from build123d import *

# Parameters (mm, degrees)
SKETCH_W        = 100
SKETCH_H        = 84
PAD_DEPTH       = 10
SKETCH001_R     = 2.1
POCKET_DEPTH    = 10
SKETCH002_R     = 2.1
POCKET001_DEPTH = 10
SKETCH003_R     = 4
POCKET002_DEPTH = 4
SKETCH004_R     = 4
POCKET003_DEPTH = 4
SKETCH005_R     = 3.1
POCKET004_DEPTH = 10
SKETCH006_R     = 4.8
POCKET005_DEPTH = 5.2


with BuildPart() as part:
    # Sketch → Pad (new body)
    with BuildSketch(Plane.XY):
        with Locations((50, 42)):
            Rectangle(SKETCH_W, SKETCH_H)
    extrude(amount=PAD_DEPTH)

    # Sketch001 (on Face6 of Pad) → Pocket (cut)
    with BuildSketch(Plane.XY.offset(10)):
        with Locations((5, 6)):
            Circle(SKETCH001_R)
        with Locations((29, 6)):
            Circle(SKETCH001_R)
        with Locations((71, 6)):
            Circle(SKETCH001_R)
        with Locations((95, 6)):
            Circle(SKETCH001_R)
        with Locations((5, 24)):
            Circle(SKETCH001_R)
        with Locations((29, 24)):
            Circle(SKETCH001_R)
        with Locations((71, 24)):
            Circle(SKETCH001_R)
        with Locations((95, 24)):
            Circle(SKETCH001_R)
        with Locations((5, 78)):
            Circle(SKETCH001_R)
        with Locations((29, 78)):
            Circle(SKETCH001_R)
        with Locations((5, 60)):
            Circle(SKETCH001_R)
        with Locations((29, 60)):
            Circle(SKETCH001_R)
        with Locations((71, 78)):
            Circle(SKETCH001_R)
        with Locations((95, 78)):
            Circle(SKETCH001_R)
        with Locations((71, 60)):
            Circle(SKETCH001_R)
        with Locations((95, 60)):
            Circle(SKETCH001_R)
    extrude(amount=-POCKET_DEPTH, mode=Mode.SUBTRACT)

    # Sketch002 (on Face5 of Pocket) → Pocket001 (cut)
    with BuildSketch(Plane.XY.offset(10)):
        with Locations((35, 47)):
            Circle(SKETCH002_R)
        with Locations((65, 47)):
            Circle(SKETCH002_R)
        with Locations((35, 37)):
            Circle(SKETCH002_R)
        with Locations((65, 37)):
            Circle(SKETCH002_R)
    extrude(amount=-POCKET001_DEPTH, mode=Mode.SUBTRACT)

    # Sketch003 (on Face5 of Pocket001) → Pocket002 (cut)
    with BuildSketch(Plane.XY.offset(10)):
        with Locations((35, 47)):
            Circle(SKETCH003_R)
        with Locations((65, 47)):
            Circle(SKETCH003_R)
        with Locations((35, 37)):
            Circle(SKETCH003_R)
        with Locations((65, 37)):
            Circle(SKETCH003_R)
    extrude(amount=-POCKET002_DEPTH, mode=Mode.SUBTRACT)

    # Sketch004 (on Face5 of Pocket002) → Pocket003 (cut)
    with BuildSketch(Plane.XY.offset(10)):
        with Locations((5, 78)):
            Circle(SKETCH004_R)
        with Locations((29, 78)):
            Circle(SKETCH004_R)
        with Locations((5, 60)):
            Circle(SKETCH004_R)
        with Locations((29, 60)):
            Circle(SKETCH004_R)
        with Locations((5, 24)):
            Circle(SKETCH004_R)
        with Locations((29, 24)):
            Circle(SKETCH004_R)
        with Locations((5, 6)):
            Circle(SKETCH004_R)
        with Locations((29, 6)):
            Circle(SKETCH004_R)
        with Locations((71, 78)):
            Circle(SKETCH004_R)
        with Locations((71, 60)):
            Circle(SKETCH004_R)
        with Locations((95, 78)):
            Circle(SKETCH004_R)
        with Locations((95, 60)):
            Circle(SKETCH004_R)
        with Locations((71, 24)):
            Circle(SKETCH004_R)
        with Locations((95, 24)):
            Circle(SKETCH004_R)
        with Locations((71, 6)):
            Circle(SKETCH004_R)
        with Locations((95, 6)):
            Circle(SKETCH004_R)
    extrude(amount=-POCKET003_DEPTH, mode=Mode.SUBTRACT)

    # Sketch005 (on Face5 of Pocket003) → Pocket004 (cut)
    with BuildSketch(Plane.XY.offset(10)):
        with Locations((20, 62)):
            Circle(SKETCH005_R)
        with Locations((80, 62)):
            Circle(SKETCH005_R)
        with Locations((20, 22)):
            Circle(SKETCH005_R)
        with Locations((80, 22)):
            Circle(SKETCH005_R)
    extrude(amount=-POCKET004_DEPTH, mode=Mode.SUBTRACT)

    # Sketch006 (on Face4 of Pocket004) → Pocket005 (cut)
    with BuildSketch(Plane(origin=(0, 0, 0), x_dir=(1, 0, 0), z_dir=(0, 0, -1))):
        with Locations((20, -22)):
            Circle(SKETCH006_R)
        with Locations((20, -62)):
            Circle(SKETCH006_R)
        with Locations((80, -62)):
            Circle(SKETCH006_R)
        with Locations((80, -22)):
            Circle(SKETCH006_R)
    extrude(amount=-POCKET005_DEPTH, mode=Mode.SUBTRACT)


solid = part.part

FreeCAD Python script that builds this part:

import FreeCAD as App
import Part
import Sketcher
from FreeCAD import Vector
Q = App.Units.Quantity


def add_polygon(sketch, points):
    """Adds a closed chain of lines whose ends are joined by coincident constraints."""
    first, n = sketch.GeometryCount, len(points)
    for a, b in zip(points, points[1:] + points[:1]):
        sketch.addGeometry(Part.LineSegment(App.Vector(*a, 0), App.Vector(*b, 0)), False)
    for i in range(n):
        sketch.addConstraint(Sketcher.Constraint("Coincident", first + i, 2, first + (i + 1) % n, 1))

doc = App.newDocument("Part")
params = doc.addObject("Spreadsheet::Sheet", "Params")
for row, (alias, value) in enumerate([
    ("sketch1_width", "100 mm"),
    ("sketch1_height", "84 mm"),
    ("pad1_length", "10 mm"),
    ("sketch2_diameter", "4.2 mm"),
    ("pocket1_length", "10 mm"),
    ("sketch3_diameter", "4.2 mm"),
    ("pocket2_length", "10 mm"),
    ("sketch4_diameter", "8 mm"),
    ("pocket3_length", "4 mm"),
    ("sketch5_diameter", "8 mm"),
    ("pocket4_length", "4 mm"),
    ("sketch6_diameter", "6.2 mm"),
    ("pocket5_length", "10 mm"),
    ("sketch7_diameter", "9.6 mm"),
    ("pocket6_length", "5.2 mm"),
], start=1):
    params.set(f"A{row}", alias)
    params.set(f"B{row}", "=" + value)
    params.setAlias(f"B{row}", alias)

body = doc.addObject("PartDesign::Body", "Body")

# Sketch on XY plane
sketch1 = body.newObject("Sketcher::SketchObject", "Sketch")
sketch1.AttachmentSupport = (doc.getObject("XY_Plane"), [""])
sketch1.MapMode = "FlatFace"
add_polygon(sketch1, [(0, 84), (0, 0), (100, 0), (100, 84)])  # lines 0-3
sketch1.addConstraint(Sketcher.Constraint("Vertical", 0))
sketch1.addConstraint(Sketcher.Constraint("Horizontal", 1))
sketch1.addConstraint(Sketcher.Constraint("Vertical", 2))
sketch1.addConstraint(Sketcher.Constraint("Horizontal", 3))
sketch1.addConstraint(Sketcher.Constraint("Coincident", 0, 2, -1, 1))
sketch1.addConstraint(Sketcher.Constraint("DistanceX", 1, 1, 1, 2, Q("100 mm")))
sketch1.addConstraint(Sketcher.Constraint("DistanceY", 0, 2, 0, 1, Q("84 mm")))
sketch1.setExpression("Constraints[9]", "Params.sketch1_width")
sketch1.setExpression("Constraints[10]", "Params.sketch1_height")
pad1 = body.newObject("PartDesign::Pad", "Pad")
pad1.Profile = sketch1
pad1.setExpression("Length", "Params.pad1_length")

# Sketch on XY plane
sketch2 = body.newObject("Sketcher::SketchObject", "Sketch001")
sketch2.AttachmentSupport = (doc.getObject("XY_Plane"), [""])
sketch2.MapMode = "FlatFace"
sketch2.AttachmentOffset = App.Placement(Vector(0, 0, 10), App.Rotation())
sketch2.addGeometry(Part.Circle(Vector(5, 6, 0), Vector(0, 0, 1), 2.1), False)
sketch2.addGeometry(Part.Circle(Vector(29, 6, 0), Vector(0, 0, 1), 2.1), False)
sketch2.addGeometry(Part.Circle(Vector(71, 6, 0), Vector(0, 0, 1), 2.1), False)
sketch2.addGeometry(Part.Circle(Vector(95, 6, 0), Vector(0, 0, 1), 2.1), False)
sketch2.addGeometry(Part.Circle(Vector(5, 24, 0), Vector(0, 0, 1), 2.1), False)
sketch2.addGeometry(Part.Circle(Vector(29, 24, 0), Vector(0, 0, 1), 2.1), False)
sketch2.addGeometry(Part.Circle(Vector(71, 24, 0), Vector(0, 0, 1), 2.1), False)
sketch2.addGeometry(Part.Circle(Vector(95, 24, 0), Vector(0, 0, 1), 2.1), False)
sketch2.addGeometry(Part.Circle(Vector(5, 78, 0), Vector(0, 0, 1), 2.1), False)
sketch2.addGeometry(Part.Circle(Vector(29, 78, 0), Vector(0, 0, 1), 2.1), False)
sketch2.addGeometry(Part.Circle(Vector(5, 60, 0), Vector(0, 0, 1), 2.1), False)
sketch2.addGeometry(Part.Circle(Vector(29, 60, 0), Vector(0, 0, 1), 2.1), False)
sketch2.addGeometry(Part.Circle(Vector(71, 78, 0), Vector(0, 0, 1), 2.1), False)
sketch2.addGeometry(Part.Circle(Vector(95, 78, 0), Vector(0, 0, 1), 2.1), False)
sketch2.addGeometry(Part.Circle(Vector(71, 60, 0), Vector(0, 0, 1), 2.1), False)
sketch2.addGeometry(Part.Circle(Vector(95, 60, 0), Vector(0, 0, 1), 2.1), False)
sketch2.addConstraint(Sketcher.Constraint("Equal", 0, 1))
sketch2.addConstraint(Sketcher.Constraint("Equal", 1, 2))
sketch2.addConstraint(Sketcher.Constraint("Equal", 2, 3))
sketch2.addConstraint(Sketcher.Constraint("Equal", 3, 4))
sketch2.addConstraint(Sketcher.Constraint("Equal", 4, 5))
sketch2.addConstraint(Sketcher.Constraint("Equal", 5, 6))
sketch2.addConstraint(Sketcher.Constraint("Equal", 6, 7))
sketch2.addConstraint(Sketcher.Constraint("Equal", 7, 8))
sketch2.addConstraint(Sketcher.Constraint("Equal", 8, 9))
sketch2.addConstraint(Sketcher.Constraint("Equal", 9, 10))
sketch2.addConstraint(Sketcher.Constraint("Equal", 10, 11))
sketch2.addConstraint(Sketcher.Constraint("Equal", 11, 12))
sketch2.addConstraint(Sketcher.Constraint("Equal", 12, 13))
sketch2.addConstraint(Sketcher.Constraint("Equal", 13, 14))
sketch2.addConstraint(Sketcher.Constraint("Equal", 14, 15))
sketch2.addConstraint(Sketcher.Constraint("Horizontal", 0, 3, 1, 3))
sketch2.addConstraint(Sketcher.Constraint("Horizontal", 1, 3, 2, 3))
sketch2.addConstraint(Sketcher.Constraint("Horizontal", 2, 3, 3, 3))
sketch2.addConstraint(Sketcher.Constraint("Horizontal", 4, 3, 5, 3))
sketch2.addConstraint(Sketcher.Constraint("Horizontal", 5, 3, 6, 3))
sketch2.addConstraint(Sketcher.Constraint("Horizontal", 6, 3, 7, 3))
sketch2.addConstraint(Sketcher.Constraint("Horizontal", 8, 3, 9, 3))
sketch2.addConstraint(Sketcher.Constraint("Horizontal", 10, 3, 11, 3))
sketch2.addConstraint(Sketcher.Constraint("Horizontal", 9, 3, 12, 3))
sketch2.addConstraint(Sketcher.Constraint("Horizontal", 12, 3, 13, 3))
sketch2.addConstraint(Sketcher.Constraint("Horizontal", 11, 3, 14, 3))
sketch2.addConstraint(Sketcher.Constraint("Horizontal", 14, 3, 15, 3))
sketch2.addConstraint(Sketcher.Constraint("Vertical", 0, 3, 4, 3))
sketch2.addConstraint(Sketcher.Constraint("Vertical", 1, 3, 5, 3))
sketch2.addConstraint(Sketcher.Constraint("Vertical", 2, 3, 6, 3))
sketch2.addConstraint(Sketcher.Constraint("Vertical", 3, 3, 7, 3))
sketch2.addConstraint(Sketcher.Constraint("Vertical", 4, 3, 8, 3))
sketch2.addConstraint(Sketcher.Constraint("Vertical", 5, 3, 9, 3))
sketch2.addConstraint(Sketcher.Constraint("Vertical", 8, 3, 10, 3))
sketch2.addConstraint(Sketcher.Constraint("Vertical", 9, 3, 11, 3))
sketch2.addConstraint(Sketcher.Constraint("Vertical", 6, 3, 12, 3))
sketch2.addConstraint(Sketcher.Constraint("Vertical", 7, 3, 13, 3))
sketch2.addConstraint(Sketcher.Constraint("Vertical", 12, 3, 14, 3))
sketch2.addConstraint(Sketcher.Constraint("Vertical", 13, 3, 15, 3))
sketch2.addConstraint(Sketcher.Constraint("Diameter", 0, Q("4.2 mm")))
sketch2.addConstraint(Sketcher.Constraint("DistanceX", -1, 1, 0, 3, Q("5 mm")))
sketch2.addConstraint(Sketcher.Constraint("DistanceY", -1, 1, 0, 3, Q("6 mm")))
sketch2.addConstraint(Sketcher.Constraint("DistanceX", -1, 1, 1, 3, Q("29 mm")))
sketch2.addConstraint(Sketcher.Constraint("DistanceX", -1, 1, 2, 3, Q("71 mm")))
sketch2.addConstraint(Sketcher.Constraint("DistanceX", -1, 1, 3, 3, Q("95 mm")))
sketch2.addConstraint(Sketcher.Constraint("DistanceY", -1, 1, 4, 3, Q("24 mm")))
sketch2.addConstraint(Sketcher.Constraint("DistanceY", -1, 1, 8, 3, Q("78 mm")))
sketch2.addConstraint(Sketcher.Constraint("DistanceY", -1, 1, 10, 3, Q("60 mm")))
sketch2.setExpression("Constraints[39]", "Params.sketch2_diameter")
pocket1 = body.newObject("PartDesign::Pocket", "Pocket")
pocket1.Profile = sketch2
pocket1.setExpression("Length", "Params.pocket1_length")

# Sketch on XY plane
sketch3 = body.newObject("Sketcher::SketchObject", "Sketch002")
sketch3.AttachmentSupport = (doc.getObject("XY_Plane"), [""])
sketch3.MapMode = "FlatFace"
sketch3.AttachmentOffset = App.Placement(Vector(0, 0, 10), App.Rotation())
sketch3.addGeometry(Part.Circle(Vector(35, 47, 0), Vector(0, 0, 1), 2.1), False)
sketch3.addGeometry(Part.Circle(Vector(65, 47, 0), Vector(0, 0, 1), 2.1), False)
sketch3.addGeometry(Part.Circle(Vector(35, 37, 0), Vector(0, 0, 1), 2.1), False)
sketch3.addGeometry(Part.Circle(Vector(65, 37, 0), Vector(0, 0, 1), 2.1), False)
sketch3.addConstraint(Sketcher.Constraint("Equal", 0, 1))
sketch3.addConstraint(Sketcher.Constraint("Equal", 1, 2))
sketch3.addConstraint(Sketcher.Constraint("Equal", 2, 3))
sketch3.addConstraint(Sketcher.Constraint("Horizontal", 0, 3, 1, 3))
sketch3.addConstraint(Sketcher.Constraint("Horizontal", 2, 3, 3, 3))
sketch3.addConstraint(Sketcher.Constraint("Vertical", 0, 3, 2, 3))
sketch3.addConstraint(Sketcher.Constraint("Vertical", 1, 3, 3, 3))
sketch3.addConstraint(Sketcher.Constraint("Diameter", 0, Q("4.2 mm")))
sketch3.addConstraint(Sketcher.Constraint("DistanceX", -1, 1, 0, 3, Q("35 mm")))
sketch3.addConstraint(Sketcher.Constraint("DistanceY", -1, 1, 0, 3, Q("47 mm")))
sketch3.addConstraint(Sketcher.Constraint("DistanceX", -1, 1, 1, 3, Q("65 mm")))
sketch3.addConstraint(Sketcher.Constraint("DistanceY", -1, 1, 2, 3, Q("37 mm")))
sketch3.setExpression("Constraints[7]", "Params.sketch3_diameter")
pocket2 = body.newObject("PartDesign::Pocket", "Pocket001")
pocket2.Profile = sketch3
pocket2.setExpression("Length", "Params.pocket2_length")

# Sketch on XY plane
sketch4 = body.newObject("Sketcher::SketchObject", "Sketch003")
sketch4.AttachmentSupport = (doc.getObject("XY_Plane"), [""])
sketch4.MapMode = "FlatFace"
sketch4.AttachmentOffset = App.Placement(Vector(0, 0, 10), App.Rotation())
sketch4.addGeometry(Part.Circle(Vector(35, 47, 0), Vector(0, 0, 1), 4), False)
sketch4.addGeometry(Part.Circle(Vector(65, 47, 0), Vector(0, 0, 1), 4), False)
sketch4.addGeometry(Part.Circle(Vector(35, 37, 0), Vector(0, 0, 1), 4), False)
sketch4.addGeometry(Part.Circle(Vector(65, 37, 0), Vector(0, 0, 1), 4), False)
sketch4.addConstraint(Sketcher.Constraint("Equal", 0, 1))
sketch4.addConstraint(Sketcher.Constraint("Equal", 1, 2))
sketch4.addConstraint(Sketcher.Constraint("Equal", 2, 3))
sketch4.addConstraint(Sketcher.Constraint("Horizontal", 0, 3, 1, 3))
sketch4.addConstraint(Sketcher.Constraint("Horizontal", 2, 3, 3, 3))
sketch4.addConstraint(Sketcher.Constraint("Vertical", 0, 3, 2, 3))
sketch4.addConstraint(Sketcher.Constraint("Vertical", 1, 3, 3, 3))
sketch4.addConstraint(Sketcher.Constraint("Diameter", 0, Q("8 mm")))
sketch4.addConstraint(Sketcher.Constraint("DistanceX", -1, 1, 0, 3, Q("35 mm")))
sketch4.addConstraint(Sketcher.Constraint("DistanceY", -1, 1, 0, 3, Q("47 mm")))
sketch4.addConstraint(Sketcher.Constraint("DistanceX", -1, 1, 1, 3, Q("65 mm")))
sketch4.addConstraint(Sketcher.Constraint("DistanceY", -1, 1, 2, 3, Q("37 mm")))
sketch4.setExpression("Constraints[7]", "Params.sketch4_diameter")
pocket3 = body.newObject("PartDesign::Pocket", "Pocket002")
pocket3.Profile = sketch4
pocket3.setExpression("Length", "Params.pocket3_length")

# Sketch on XY plane
sketch5 = body.newObject("Sketcher::SketchObject", "Sketch004")
sketch5.AttachmentSupport = (doc.getObject("XY_Plane"), [""])
sketch5.MapMode = "FlatFace"
sketch5.AttachmentOffset = App.Placement(Vector(0, 0, 10), App.Rotation())
sketch5.addGeometry(Part.Circle(Vector(5, 78, 0), Vector(0, 0, 1), 4), False)
sketch5.addGeometry(Part.Circle(Vector(29, 78, 0), Vector(0, 0, 1), 4), False)
sketch5.addGeometry(Part.Circle(Vector(5, 60, 0), Vector(0, 0, 1), 4), False)
sketch5.addGeometry(Part.Circle(Vector(29, 60, 0), Vector(0, 0, 1), 4), False)
sketch5.addGeometry(Part.Circle(Vector(5, 24, 0), Vector(0, 0, 1), 4), False)
sketch5.addGeometry(Part.Circle(Vector(29, 24, 0), Vector(0, 0, 1), 4), False)
sketch5.addGeometry(Part.Circle(Vector(5, 6, 0), Vector(0, 0, 1), 4), False)
sketch5.addGeometry(Part.Circle(Vector(29, 6, 0), Vector(0, 0, 1), 4), False)
sketch5.addGeometry(Part.Circle(Vector(71, 78, 0), Vector(0, 0, 1), 4), False)
sketch5.addGeometry(Part.Circle(Vector(71, 60, 0), Vector(0, 0, 1), 4), False)
sketch5.addGeometry(Part.Circle(Vector(95, 78, 0), Vector(0, 0, 1), 4), False)
sketch5.addGeometry(Part.Circle(Vector(95, 60, 0), Vector(0, 0, 1), 4), False)
sketch5.addGeometry(Part.Circle(Vector(71, 24, 0), Vector(0, 0, 1), 4), False)
sketch5.addGeometry(Part.Circle(Vector(95, 24, 0), Vector(0, 0, 1), 4), False)
sketch5.addGeometry(Part.Circle(Vector(71, 6, 0), Vector(0, 0, 1), 4), False)
sketch5.addGeometry(Part.Circle(Vector(95, 6, 0), Vector(0, 0, 1), 4), False)
sketch5.addConstraint(Sketcher.Constraint("Equal", 0, 1))
sketch5.addConstraint(Sketcher.Constraint("Equal", 1, 2))
sketch5.addConstraint(Sketcher.Constraint("Equal", 2, 3))
sketch5.addConstraint(Sketcher.Constraint("Equal", 3, 4))
sketch5.addConstraint(Sketcher.Constraint("Equal", 4, 5))
sketch5.addConstraint(Sketcher.Constraint("Equal", 5, 6))
sketch5.addConstraint(Sketcher.Constraint("Equal", 6, 7))
sketch5.addConstraint(Sketcher.Constraint("Equal", 7, 8))
sketch5.addConstraint(Sketcher.Constraint("Equal", 8, 9))
sketch5.addConstraint(Sketcher.Constraint("Equal", 9, 10))
sketch5.addConstraint(Sketcher.Constraint("Equal", 10, 11))
sketch5.addConstraint(Sketcher.Constraint("Equal", 11, 12))
sketch5.addConstraint(Sketcher.Constraint("Equal", 12, 13))
sketch5.addConstraint(Sketcher.Constraint("Equal", 13, 14))
sketch5.addConstraint(Sketcher.Constraint("Equal", 14, 15))
sketch5.addConstraint(Sketcher.Constraint("Horizontal", 0, 3, 1, 3))
sketch5.addConstraint(Sketcher.Constraint("Horizontal", 2, 3, 3, 3))
sketch5.addConstraint(Sketcher.Constraint("Horizontal", 4, 3, 5, 3))
sketch5.addConstraint(Sketcher.Constraint("Horizontal", 6, 3, 7, 3))
sketch5.addConstraint(Sketcher.Constraint("Horizontal", 1, 3, 8, 3))
sketch5.addConstraint(Sketcher.Constraint("Horizontal", 3, 3, 9, 3))
sketch5.addConstraint(Sketcher.Constraint("Horizontal", 8, 3, 10, 3))
sketch5.addConstraint(Sketcher.Constraint("Horizontal", 9, 3, 11, 3))
sketch5.addConstraint(Sketcher.Constraint("Horizontal", 5, 3, 12, 3))
sketch5.addConstraint(Sketcher.Constraint("Horizontal", 12, 3, 13, 3))
sketch5.addConstraint(Sketcher.Constraint("Horizontal", 7, 3, 14, 3))
sketch5.addConstraint(Sketcher.Constraint("Horizontal", 14, 3, 15, 3))
sketch5.addConstraint(Sketcher.Constraint("Vertical", 0, 3, 2, 3))
sketch5.addConstraint(Sketcher.Constraint("Vertical", 1, 3, 3, 3))
sketch5.addConstraint(Sketcher.Constraint("Vertical", 2, 3, 4, 3))
sketch5.addConstraint(Sketcher.Constraint("Vertical", 3, 3, 5, 3))
sketch5.addConstraint(Sketcher.Constraint("Vertical", 4, 3, 6, 3))
sketch5.addConstraint(Sketcher.Constraint("Vertical", 5, 3, 7, 3))
sketch5.addConstraint(Sketcher.Constraint("Vertical", 8, 3, 9, 3))
sketch5.addConstraint(Sketcher.Constraint("Vertical", 10, 3, 11, 3))
sketch5.addConstraint(Sketcher.Constraint("Vertical", 9, 3, 12, 3))
sketch5.addConstraint(Sketcher.Constraint("Vertical", 11, 3, 13, 3))
sketch5.addConstraint(Sketcher.Constraint("Vertical", 12, 3, 14, 3))
sketch5.addConstraint(Sketcher.Constraint("Vertical", 13, 3, 15, 3))
sketch5.addConstraint(Sketcher.Constraint("Diameter", 0, Q("8 mm")))
sketch5.addConstraint(Sketcher.Constraint("DistanceX", -1, 1, 0, 3, Q("5 mm")))
sketch5.addConstraint(Sketcher.Constraint("DistanceY", -1, 1, 0, 3, Q("78 mm")))
sketch5.addConstraint(Sketcher.Constraint("DistanceX", -1, 1, 1, 3, Q("29 mm")))
sketch5.addConstraint(Sketcher.Constraint("DistanceY", -1, 1, 2, 3, Q("60 mm")))
sketch5.addConstraint(Sketcher.Constraint("DistanceY", -1, 1, 4, 3, Q("24 mm")))
sketch5.addConstraint(Sketcher.Constraint("DistanceY", -1, 1, 6, 3, Q("6 mm")))
sketch5.addConstraint(Sketcher.Constraint("DistanceX", -1, 1, 8, 3, Q("71 mm")))
sketch5.addConstraint(Sketcher.Constraint("DistanceX", -1, 1, 10, 3, Q("95 mm")))
sketch5.setExpression("Constraints[39]", "Params.sketch5_diameter")
pocket4 = body.newObject("PartDesign::Pocket", "Pocket003")
pocket4.Profile = sketch5
pocket4.setExpression("Length", "Params.pocket4_length")

# Sketch on XY plane
sketch6 = body.newObject("Sketcher::SketchObject", "Sketch005")
sketch6.AttachmentSupport = (doc.getObject("XY_Plane"), [""])
sketch6.MapMode = "FlatFace"
sketch6.AttachmentOffset = App.Placement(Vector(0, 0, 10), App.Rotation())
sketch6.addGeometry(Part.Circle(Vector(20, 62, 0), Vector(0, 0, 1), 3.1), False)
sketch6.addGeometry(Part.Circle(Vector(80, 62, 0), Vector(0, 0, 1), 3.1), False)
sketch6.addGeometry(Part.Circle(Vector(20, 22, 0), Vector(0, 0, 1), 3.1), False)
sketch6.addGeometry(Part.Circle(Vector(80, 22, 0), Vector(0, 0, 1), 3.1), False)
sketch6.addConstraint(Sketcher.Constraint("Equal", 0, 1))
sketch6.addConstraint(Sketcher.Constraint("Equal", 1, 2))
sketch6.addConstraint(Sketcher.Constraint("Equal", 2, 3))
sketch6.addConstraint(Sketcher.Constraint("Horizontal", 0, 3, 1, 3))
sketch6.addConstraint(Sketcher.Constraint("Horizontal", 2, 3, 3, 3))
sketch6.addConstraint(Sketcher.Constraint("Vertical", 0, 3, 2, 3))
sketch6.addConstraint(Sketcher.Constraint("Vertical", 1, 3, 3, 3))
sketch6.addConstraint(Sketcher.Constraint("Diameter", 0, Q("6.2 mm")))
sketch6.addConstraint(Sketcher.Constraint("DistanceX", -1, 1, 0, 3, Q("20 mm")))
sketch6.addConstraint(Sketcher.Constraint("DistanceY", -1, 1, 0, 3, Q("62 mm")))
sketch6.addConstraint(Sketcher.Constraint("DistanceX", -1, 1, 1, 3, Q("80 mm")))
sketch6.addConstraint(Sketcher.Constraint("DistanceY", -1, 1, 2, 3, Q("22 mm")))
sketch6.setExpression("Constraints[7]", "Params.sketch6_diameter")
pocket5 = body.newObject("PartDesign::Pocket", "Pocket004")
pocket5.Profile = sketch6
pocket5.setExpression("Length", "Params.pocket5_length")

# Sketch on XY plane
sketch7 = body.newObject("Sketcher::SketchObject", "Sketch006")
sketch7.AttachmentSupport = (doc.getObject("XY_Plane"), [""])
sketch7.MapMode = "FlatFace"
sketch7.addGeometry(Part.Circle(Vector(20, 22, 0), Vector(0, 0, 1), 4.8), False)
sketch7.addGeometry(Part.Circle(Vector(20, 62, 0), Vector(0, 0, 1), 4.8), False)
sketch7.addGeometry(Part.Circle(Vector(80, 62, 0), Vector(0, 0, 1), 4.8), False)
sketch7.addGeometry(Part.Circle(Vector(80, 22, 0), Vector(0, 0, 1), 4.8), False)
sketch7.addConstraint(Sketcher.Constraint("Equal", 0, 1))
sketch7.addConstraint(Sketcher.Constraint("Equal", 1, 2))
sketch7.addConstraint(Sketcher.Constraint("Equal", 2, 3))
sketch7.addConstraint(Sketcher.Constraint("Horizontal", 1, 3, 2, 3))
sketch7.addConstraint(Sketcher.Constraint("Horizontal", 0, 3, 3, 3))
sketch7.addConstraint(Sketcher.Constraint("Vertical", 0, 3, 1, 3))
sketch7.addConstraint(Sketcher.Constraint("Vertical", 2, 3, 3, 3))
sketch7.addConstraint(Sketcher.Constraint("Diameter", 0, Q("9.6 mm")))
sketch7.addConstraint(Sketcher.Constraint("DistanceX", -1, 1, 0, 3, Q("20 mm")))
sketch7.addConstraint(Sketcher.Constraint("DistanceY", -1, 1, 0, 3, Q("22 mm")))
sketch7.addConstraint(Sketcher.Constraint("DistanceY", -1, 1, 1, 3, Q("62 mm")))
sketch7.addConstraint(Sketcher.Constraint("DistanceX", -1, 1, 2, 3, Q("80 mm")))
sketch7.setExpression("Constraints[7]", "Params.sketch7_diameter")
pocket6 = body.newObject("PartDesign::Pocket", "Pocket005")
pocket6.Profile = sketch7
pocket6.setExpression("Length", "Params.pocket6_length")
pocket6.Reversed = True

doc.recompute()
